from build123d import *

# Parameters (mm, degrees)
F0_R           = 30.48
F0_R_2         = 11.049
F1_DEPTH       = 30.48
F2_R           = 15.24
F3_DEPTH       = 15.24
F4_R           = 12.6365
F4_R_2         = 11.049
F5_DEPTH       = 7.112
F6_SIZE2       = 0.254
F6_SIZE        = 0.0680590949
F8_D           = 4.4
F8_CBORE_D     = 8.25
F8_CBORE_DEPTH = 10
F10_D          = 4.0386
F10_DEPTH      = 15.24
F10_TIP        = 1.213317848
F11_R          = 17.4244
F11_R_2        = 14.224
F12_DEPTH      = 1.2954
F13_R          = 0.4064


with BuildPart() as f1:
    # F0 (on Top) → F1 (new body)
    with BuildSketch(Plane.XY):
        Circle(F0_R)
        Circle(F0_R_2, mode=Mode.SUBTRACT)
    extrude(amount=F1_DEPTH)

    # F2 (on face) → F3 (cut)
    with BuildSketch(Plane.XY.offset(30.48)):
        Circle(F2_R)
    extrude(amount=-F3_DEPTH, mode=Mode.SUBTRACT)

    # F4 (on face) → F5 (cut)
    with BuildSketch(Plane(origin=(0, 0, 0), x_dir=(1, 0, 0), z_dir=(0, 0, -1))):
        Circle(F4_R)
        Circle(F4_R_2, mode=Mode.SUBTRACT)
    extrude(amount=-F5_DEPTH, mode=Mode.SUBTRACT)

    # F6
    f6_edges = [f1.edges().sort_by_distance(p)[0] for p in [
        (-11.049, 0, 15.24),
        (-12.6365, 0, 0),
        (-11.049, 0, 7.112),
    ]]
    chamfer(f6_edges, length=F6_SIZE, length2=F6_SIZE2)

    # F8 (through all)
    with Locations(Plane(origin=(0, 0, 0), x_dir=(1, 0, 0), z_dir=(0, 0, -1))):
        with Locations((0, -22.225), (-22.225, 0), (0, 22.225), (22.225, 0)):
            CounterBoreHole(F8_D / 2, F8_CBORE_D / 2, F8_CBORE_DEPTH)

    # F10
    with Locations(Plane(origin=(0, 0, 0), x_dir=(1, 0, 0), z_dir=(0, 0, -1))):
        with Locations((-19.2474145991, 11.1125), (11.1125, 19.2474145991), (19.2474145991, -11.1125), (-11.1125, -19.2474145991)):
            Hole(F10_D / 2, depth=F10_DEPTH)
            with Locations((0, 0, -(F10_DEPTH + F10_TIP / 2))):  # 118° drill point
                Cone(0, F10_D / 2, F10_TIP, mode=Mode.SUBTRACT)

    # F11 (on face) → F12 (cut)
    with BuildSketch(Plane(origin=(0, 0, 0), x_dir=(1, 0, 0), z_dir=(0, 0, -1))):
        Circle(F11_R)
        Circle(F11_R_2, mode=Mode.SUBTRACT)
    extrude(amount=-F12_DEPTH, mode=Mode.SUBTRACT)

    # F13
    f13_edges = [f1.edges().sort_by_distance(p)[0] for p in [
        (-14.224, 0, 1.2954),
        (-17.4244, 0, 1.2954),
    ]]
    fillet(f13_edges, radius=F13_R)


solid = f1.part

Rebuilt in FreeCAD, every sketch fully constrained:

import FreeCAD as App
import Part
import Sketcher

V = App.Vector
Q = App.Units.Quantity


def edges_at(feature, points):
    """Names of the edges that pass closest to the given points."""
    edges = feature.Shape.Edges
    near = lambda p: min(range(len(edges)), key=lambda i: edges[i].distToShape(Part.Vertex(*p))[0])
    return sorted({f"Edge{near(p) + 1}" for p in points})

doc = App.newDocument("Part")
body = doc.addObject("PartDesign::Body", "Body")

# Sketch on XY plane
sketch1 = doc.addObject("Sketcher::SketchObject", "Sketch")
body.addObject(sketch1)
sketch1.AttachmentSupport = (doc.XY_Plane, [""])
sketch1.MapMode = "FlatFace"
sketch1.addGeometry([
    Part.Circle(V(0, 0, 0), V(0, 0, 1), 30),
    Part.Circle(V(0, 0, 0), V(0, 0, 1), 11),
], False)
sketch1.addConstraint([
    Sketcher.Constraint("Coincident", 0, 3, -1, 1),
    Sketcher.Constraint("Coincident", 1, 3, -1, 1),
    Sketcher.Constraint("Diameter", 0, Q("2.4 in")),
    Sketcher.Constraint("Diameter", 1, Q("0.87 in")),
])
pad1 = doc.addObject("PartDesign::Pad", "Pad")
body.addObject(pad1)
pad1.Profile = sketch1
pad1.Length = Q("1.2 in")

# Sketch on XY plane
sketch2 = doc.addObject("Sketcher::SketchObject", "Sketch001")
body.addObject(sketch2)
sketch2.AttachmentSupport = (doc.XY_Plane, [""])
sketch2.MapMode = "FlatFace"
sketch2.AttachmentOffset = App.Placement(V(0, 0, 1.2 * 25.4), App.Rotation())
sketch2.addGeometry(Part.Circle(V(0, 0, 0), V(0, 0, 1), 15), False)
sketch2.addConstraint([
    Sketcher.Constraint("Coincident", 0, 3, -1, 1),
    Sketcher.Constraint("Diameter", 0, Q("1.2 in")),
])
pocket1 = doc.addObject("PartDesign::Pocket", "Pocket")
body.addObject(pocket1)
pocket1.Profile = sketch2
pocket1.Length = Q("0.6 in")

# Sketch on XY plane
sketch3 = doc.addObject("Sketcher::SketchObject", "Sketch002")
body.addObject(sketch3)
sketch3.AttachmentSupport = (doc.XY_Plane, [""])
sketch3.MapMode = "FlatFace"
sketch3.addGeometry([
    Part.Circle(V(0, 0, 0), V(0, 0, 1), 13),
    Part.Circle(V(0, 0, 0), V(0, 0, 1), 11),
], False)
sketch3.addConstraint([
    Sketcher.Constraint("Coincident", 0, 3, -1, 1),
    Sketcher.Constraint("Coincident", 1, 3, -1, 1),
    Sketcher.Constraint("Diameter", 1, Q("0.87 in")),
    Sketcher.Constraint("Diameter", 0, Q("0.995 in")),
])
pocket2 = doc.addObject("PartDesign::Pocket", "Pocket001")
body.addObject(pocket2)
pocket2.Profile = sketch3
pocket2.Length = Q("0.28 in")
pocket2.Reversed = True
doc.recompute()

chamfer = doc.addObject("PartDesign::Chamfer", "Chamfer")
body.addObject(chamfer)
chamfer.Base = (pocket2, edges_at(pocket2, [(-11.049, 0, 15.24), (-12.636, 0, 0), (-11.049, 0, 7.112)]))
chamfer.ChamferType = "Two distances"
chamfer.Size = 0.068059
chamfer.Size2 = Q("0.01 in")

# Sketch on XY plane
sketch4 = doc.addObject("Sketcher::SketchObject", "Sketch003")
body.addObject(sketch4)
sketch4.AttachmentSupport = (doc.XY_Plane, [""])
sketch4.MapMode = "FlatFace"
sketch4.addGeometry([
    Part.Circle(V(0, 22.2, 0), V(0, 0, 1), 2.2),
    Part.Circle(V(-22.2, 0, 0), V(0, 0, 1), 2.2),
    Part.Circle(V(0, -22.2, 0), V(0, 0, 1), 2.2),
    Part.Circle(V(22.2, 0, 0), V(0, 0, 1), 2.2),
], False)
sketch4.addConstraint([
    Sketcher.Constraint("Equal", 0, 1),
    Sketcher.Constraint("Equal", 1, 2),
    Sketcher.Constraint("Equal", 2, 3),
    Sketcher.Constraint("Symmetric", 0, 3, 2, 3, -1, 1),
    Sketcher.Constraint("Symmetric", 1, 3, 3, 3, -1, 1),
    Sketcher.Constraint("PointOnObject", 0, 3, -2),
    Sketcher.Constraint("PointOnObject", 1, 3, -1),
    Sketcher.Constraint("Diameter", 0, 4.4),
    Sketcher.Constraint("DistanceY", 2, 3, 0, 3, Q("1.75 in")),
    Sketcher.Constraint("DistanceX", 1, 3, 3, 3, Q("1.75 in")),
])
doc.recompute()
hole = doc.addObject("PartDesign::Hole", "Hole")
body.addObject(hole)
hole.Profile = sketch4
hole.ThreadType = "None"
hole.Diameter = 4.4
hole.DepthType = "ThroughAll"
hole.HoleCutType = "Counterbore"
hole.HoleCutDiameter = 8.25
hole.HoleCutDepth = 10
hole.Reversed = True

# Sketch on XY plane
sketch5 = doc.addObject("Sketcher::SketchObject", "Sketch004")
body.addObject(sketch5)
sketch5.AttachmentSupport = (doc.XY_Plane, [""])
sketch5.MapMode = "FlatFace"
sketch5.addGeometry([
    Part.Circle(V(-19.2, -11.1, 0), V(0, 0, 1), 2),
    Part.Circle(V(11.1, -19.2, 0), V(0, 0, 1), 2),
    Part.Circle(V(19.2, 11.1, 0), V(0, 0, 1), 2),
    Part.Circle(V(-11.1, 19.2, 0), V(0, 0, 1), 2),
], False)
sketch5.addConstraint([
    Sketcher.Constraint("Equal", 0, 1),
    Sketcher.Constraint("Equal", 1, 2),
    Sketcher.Constraint("Equal", 2, 3),
    Sketcher.Constraint("Symmetric", 0, 3, 2, 3, -1, 1),
    Sketcher.Constraint("Symmetric", 1, 3, 3, 3, -1, 1),
    Sketcher.Constraint("Diameter", 0, Q("0.159 in")),
    Sketcher.Constraint("DistanceY", 0, 3, -1, 1, Q("0.4375 in")),
    Sketcher.Constraint("DistanceX", -1, 1, 1, 3, Q("0.4375 in")),
    Sketcher.Constraint("DistanceX", 0, 3, 2, 3, 38.494829),
    Sketcher.Constraint("DistanceY", 1, 3, 3, 3, 38.494829),
])
doc.recompute()
hole2 = doc.addObject("PartDesign::Hole", "Hole001")
body.addObject(hole2)
hole2.Profile = sketch5
hole2.ThreadType = "None"
hole2.Diameter = Q("0.159 in")
hole2.DepthType = "Dimension"
hole2.Depth = Q("0.6 in")
hole2.DrillPoint = "Angled"
hole2.DrillPointAngle = 118
hole2.Reversed = True

# Sketch on XY plane
sketch6 = doc.addObject("Sketcher::SketchObject", "Sketch005")
body.addObject(sketch6)
sketch6.AttachmentSupport = (doc.XY_Plane, [""])
sketch6.MapMode = "FlatFace"
sketch6.addGeometry([
    Part.Circle(V(0, 0, 0), V(0, 0, 1), 17),
    Part.Circle(V(0, 0, 0), V(0, 0, 1), 14),
], False)
sketch6.addConstraint([
    Sketcher.Constraint("Coincident", 0, 3, -1, 1),
    Sketcher.Constraint("Coincident", 1, 3, -1, 1),
    Sketcher.Constraint("Diameter", 1, Q("1.12 in")),
    Sketcher.Constraint("Diameter", 0, Q("1.372 in")),
])
pocket3 = doc.addObject("PartDesign::Pocket", "Pocket002")
body.addObject(pocket3)
pocket3.Profile = sketch6
pocket3.Length = Q("0.051 in")
pocket3.Reversed = True
doc.recompute()

fillet = doc.addObject("PartDesign::Fillet", "Fillet")
body.addObject(fillet)
fillet.Base = (pocket3, edges_at(pocket3, [(-14.224, 0, 1.295), (-17.424, 0, 1.295)]))
fillet.Radius = Q("0.016 in")

doc.recompute()
